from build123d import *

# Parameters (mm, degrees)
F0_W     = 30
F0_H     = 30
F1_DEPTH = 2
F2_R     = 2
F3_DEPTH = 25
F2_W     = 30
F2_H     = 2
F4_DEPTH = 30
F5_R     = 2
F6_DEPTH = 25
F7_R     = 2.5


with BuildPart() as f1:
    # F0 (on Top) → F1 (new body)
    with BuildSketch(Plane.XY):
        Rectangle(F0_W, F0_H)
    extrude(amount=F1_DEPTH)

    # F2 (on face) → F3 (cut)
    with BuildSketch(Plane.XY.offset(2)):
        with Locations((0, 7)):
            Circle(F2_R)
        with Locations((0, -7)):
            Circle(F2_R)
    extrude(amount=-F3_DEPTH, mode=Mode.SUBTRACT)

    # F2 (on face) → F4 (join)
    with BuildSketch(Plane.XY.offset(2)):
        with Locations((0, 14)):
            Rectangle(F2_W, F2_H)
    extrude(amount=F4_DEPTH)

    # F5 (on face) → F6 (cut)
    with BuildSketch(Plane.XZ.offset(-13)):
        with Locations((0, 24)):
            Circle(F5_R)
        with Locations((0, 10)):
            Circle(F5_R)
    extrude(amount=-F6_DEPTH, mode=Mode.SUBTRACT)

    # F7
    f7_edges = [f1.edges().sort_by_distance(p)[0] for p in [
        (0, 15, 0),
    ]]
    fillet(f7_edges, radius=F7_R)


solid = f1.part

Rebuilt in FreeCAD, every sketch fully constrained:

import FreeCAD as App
import Part
import Sketcher

V = App.Vector
Q = App.Units.Quantity


def edges_at(feature, points):
    """Names of the edges that pass closest to the given points."""
    edges = feature.Shape.Edges
    near = lambda p: min(range(len(edges)), key=lambda i: edges[i].distToShape(Part.Vertex(*p))[0])
    return sorted({f"Edge{near(p) + 1}" for p in points})


def add_polygon(sketch, points):
    """Adds a closed chain of lines whose ends are joined by coincident constraints."""
    first, n = sketch.GeometryCount, len(points)
    for a, b in zip(points, points[1:] + points[:1]):
        sketch.addGeometry(Part.LineSegment(App.Vector(*a, 0), App.Vector(*b, 0)), False)
    for i in range(n):
        sketch.addConstraint(Sketcher.Constraint("Coincident", first + i, 2, first + (i + 1) % n, 1))

doc = App.newDocument("Part")
body = doc.addObject("PartDesign::Body", "Body")

# Sketch on XY plane
sketch1 = body.newObject("Sketcher::SketchObject", "Sketch")
sketch1.AttachmentSupport = (doc.getObject("XY_Plane"), [""])
sketch1.MapMode = "FlatFace"
add_polygon(sketch1, [(-15, 15), (-15, -15), (15, -15), (15, 15)])  # lines 0-3
sketch1.addConstraint(Sketcher.Constraint("Vertical", 0))
sketch1.addConstraint(Sketcher.Constraint("Horizontal", 1))
sketch1.addConstraint(Sketcher.Constraint("Vertical", 2))
sketch1.addConstraint(Sketcher.Constraint("Horizontal", 3))
sketch1.addConstraint(Sketcher.Constraint("Symmetric", 0, 2, 2, 2, -1, 1))
sketch1.addConstraint(Sketcher.Constraint("Equal", 3, 0))
sketch1.addConstraint(Sketcher.Constraint("DistanceX", 1, 1, 1, 2, Q("30 mm")))
pad1 = body.newObject("PartDesign::Pad", "Pad")
pad1.Profile = sketch1
pad1.Length = 2

# Sketch on XY plane
sketch2 = body.newObject("Sketcher::SketchObject", "Sketch001")
sketch2.AttachmentSupport = (doc.getObject("XY_Plane"), [""])
sketch2.MapMode = "FlatFace"
sketch2.AttachmentOffset = App.Placement(V(0, 0, 2), App.Rotation())
sketch2.addGeometry(Part.Circle(V(0, 7, 0), V(0, 0, 1), 2), False)
sketch2.addGeometry(Part.Circle(V(0, -7, 0), V(0, 0, 1), 2), False)
sketch2.addConstraint(Sketcher.Constraint("Equal", 0, 1))
sketch2.addConstraint(Sketcher.Constraint("Symmetric", 0, 3, 1, 3, -1, 1))
sketch2.addConstraint(Sketcher.Constraint("PointOnObject", 0, 3, -2))
sketch2.addConstraint(Sketcher.Constraint("Diameter", 0, Q("4 mm")))
sketch2.addConstraint(Sketcher.Constraint("DistanceY", -1, 1, 0, 3, Q("7 mm")))
pocket1 = body.newObject("PartDesign::Pocket", "Pocket")
pocket1.Profile = sketch2
pocket1.Length = 25

# Sketch on XY plane
sketch3 = body.newObject("Sketcher::SketchObject", "Sketch002")
sketch3.AttachmentSupport = (doc.getObject("XY_Plane"), [""])
sketch3.MapMode = "FlatFace"
sketch3.AttachmentOffset = App.Placement(V(0, 0, 2), App.Rotation())
add_polygon(sketch3, [(-15, 15), (-15, 13), (15, 13), (15, 15)])  # lines 0-3
sketch3.addConstraint(Sketcher.Constraint("Vertical", 0))
sketch3.addConstraint(Sketcher.Constraint("Horizontal", 1))
sketch3.addConstraint(Sketcher.Constraint("Vertical", 2))
sketch3.addConstraint(Sketcher.Constraint("Horizontal", 3))
sketch3.addConstraint(Sketcher.Constraint("DistanceX", 1, 1, 1, 2, Q("30 mm")))
sketch3.addConstraint(Sketcher.Constraint("DistanceY", 0, 2, 0, 1, Q("2 mm")))
sketch3.addConstraint(Sketcher.Constraint("DistanceX", 0, 2, -1, 1, Q("15 mm")))
sketch3.addConstraint(Sketcher.Constraint("DistanceY", -1, 1, 0, 2, Q("13 mm")))
pad2 = body.newObject("PartDesign::Pad", "Pad001")
pad2.Profile = sketch3
pad2.Length = 30

# Sketch on XZ plane
sketch4 = body.newObject("Sketcher::SketchObject", "Sketch003")
sketch4.AttachmentSupport = (doc.getObject("XZ_Plane"), [""])
sketch4.MapMode = "FlatFace"
sketch4.AttachmentOffset = App.Placement(V(0, 0, -13), App.Rotation())
sketch4.addGeometry(Part.Circle(V(0, 24, 0), V(0, 0, 1), 2), False)
sketch4.addGeometry(Part.Circle(V(0, 10, 0), V(0, 0, 1), 2), False)
sketch4.addConstraint(Sketcher.Constraint("Equal", 0, 1))
sketch4.addConstraint(Sketcher.Constraint("PointOnObject", 0, 3, -2))
sketch4.addConstraint(Sketcher.Constraint("PointOnObject", 1, 3, -2))
sketch4.addConstraint(Sketcher.Constraint("Diameter", 0, Q("4 mm")))
sketch4.addConstraint(Sketcher.Constraint("DistanceY", -1, 1, 0, 3, Q("24 mm")))
sketch4.addConstraint(Sketcher.Constraint("DistanceY", -1, 1, 1, 3, Q("10 mm")))
pocket2 = body.newObject("PartDesign::Pocket", "Pocket001")
pocket2.Profile = sketch4
pocket2.Length = 25
doc.recompute()

fillet = body.newObject("PartDesign::Fillet", "Fillet")
fillet.Base = (pocket2, edges_at(pocket2, [(0, 15, 0)]))
fillet.Radius = 2.5

doc.recompute()
